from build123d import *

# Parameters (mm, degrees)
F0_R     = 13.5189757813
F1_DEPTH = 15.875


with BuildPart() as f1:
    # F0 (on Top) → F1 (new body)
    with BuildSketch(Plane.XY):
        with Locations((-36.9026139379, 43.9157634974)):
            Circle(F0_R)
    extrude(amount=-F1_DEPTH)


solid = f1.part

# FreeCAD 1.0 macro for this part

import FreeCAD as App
import Part
import Sketcher
Q = App.Units.Quantity

doc = App.newDocument("Part")
body = doc.addObject("PartDesign::Body", "Body")

# Sketch on XY plane
sketch1 = doc.addObject("Sketcher::SketchObject", "Sketch")
body.addObject(sketch1)
sketch1.AttachmentSupport = (doc.XY_Plane, [""])
sketch1.MapMode = "FlatFace"
sketch1.addGeometry(Part.Circle(App.Vector(-36.902614, 43.915763, 0), App.Vector(0, 0, 1), 13.518976), False)
sketch1.addConstraint(Sketcher.Constraint("Diameter", 0, Q("27.037952 mm")))
sketch1.addConstraint(Sketcher.Constraint("DistanceX", 0, 3, -1, 1, Q("36.902614 mm")))
sketch1.addConstraint(Sketcher.Constraint("DistanceY", -1, 1, 0, 3, Q("43.915763 mm")))
pad1 = doc.addObject("PartDesign::Pad", "Pad")
body.addObject(pad1)
pad1.Profile = sketch1
pad1.Length = Q("0.625 in")
pad1.Reversed = True

doc.recompute()
